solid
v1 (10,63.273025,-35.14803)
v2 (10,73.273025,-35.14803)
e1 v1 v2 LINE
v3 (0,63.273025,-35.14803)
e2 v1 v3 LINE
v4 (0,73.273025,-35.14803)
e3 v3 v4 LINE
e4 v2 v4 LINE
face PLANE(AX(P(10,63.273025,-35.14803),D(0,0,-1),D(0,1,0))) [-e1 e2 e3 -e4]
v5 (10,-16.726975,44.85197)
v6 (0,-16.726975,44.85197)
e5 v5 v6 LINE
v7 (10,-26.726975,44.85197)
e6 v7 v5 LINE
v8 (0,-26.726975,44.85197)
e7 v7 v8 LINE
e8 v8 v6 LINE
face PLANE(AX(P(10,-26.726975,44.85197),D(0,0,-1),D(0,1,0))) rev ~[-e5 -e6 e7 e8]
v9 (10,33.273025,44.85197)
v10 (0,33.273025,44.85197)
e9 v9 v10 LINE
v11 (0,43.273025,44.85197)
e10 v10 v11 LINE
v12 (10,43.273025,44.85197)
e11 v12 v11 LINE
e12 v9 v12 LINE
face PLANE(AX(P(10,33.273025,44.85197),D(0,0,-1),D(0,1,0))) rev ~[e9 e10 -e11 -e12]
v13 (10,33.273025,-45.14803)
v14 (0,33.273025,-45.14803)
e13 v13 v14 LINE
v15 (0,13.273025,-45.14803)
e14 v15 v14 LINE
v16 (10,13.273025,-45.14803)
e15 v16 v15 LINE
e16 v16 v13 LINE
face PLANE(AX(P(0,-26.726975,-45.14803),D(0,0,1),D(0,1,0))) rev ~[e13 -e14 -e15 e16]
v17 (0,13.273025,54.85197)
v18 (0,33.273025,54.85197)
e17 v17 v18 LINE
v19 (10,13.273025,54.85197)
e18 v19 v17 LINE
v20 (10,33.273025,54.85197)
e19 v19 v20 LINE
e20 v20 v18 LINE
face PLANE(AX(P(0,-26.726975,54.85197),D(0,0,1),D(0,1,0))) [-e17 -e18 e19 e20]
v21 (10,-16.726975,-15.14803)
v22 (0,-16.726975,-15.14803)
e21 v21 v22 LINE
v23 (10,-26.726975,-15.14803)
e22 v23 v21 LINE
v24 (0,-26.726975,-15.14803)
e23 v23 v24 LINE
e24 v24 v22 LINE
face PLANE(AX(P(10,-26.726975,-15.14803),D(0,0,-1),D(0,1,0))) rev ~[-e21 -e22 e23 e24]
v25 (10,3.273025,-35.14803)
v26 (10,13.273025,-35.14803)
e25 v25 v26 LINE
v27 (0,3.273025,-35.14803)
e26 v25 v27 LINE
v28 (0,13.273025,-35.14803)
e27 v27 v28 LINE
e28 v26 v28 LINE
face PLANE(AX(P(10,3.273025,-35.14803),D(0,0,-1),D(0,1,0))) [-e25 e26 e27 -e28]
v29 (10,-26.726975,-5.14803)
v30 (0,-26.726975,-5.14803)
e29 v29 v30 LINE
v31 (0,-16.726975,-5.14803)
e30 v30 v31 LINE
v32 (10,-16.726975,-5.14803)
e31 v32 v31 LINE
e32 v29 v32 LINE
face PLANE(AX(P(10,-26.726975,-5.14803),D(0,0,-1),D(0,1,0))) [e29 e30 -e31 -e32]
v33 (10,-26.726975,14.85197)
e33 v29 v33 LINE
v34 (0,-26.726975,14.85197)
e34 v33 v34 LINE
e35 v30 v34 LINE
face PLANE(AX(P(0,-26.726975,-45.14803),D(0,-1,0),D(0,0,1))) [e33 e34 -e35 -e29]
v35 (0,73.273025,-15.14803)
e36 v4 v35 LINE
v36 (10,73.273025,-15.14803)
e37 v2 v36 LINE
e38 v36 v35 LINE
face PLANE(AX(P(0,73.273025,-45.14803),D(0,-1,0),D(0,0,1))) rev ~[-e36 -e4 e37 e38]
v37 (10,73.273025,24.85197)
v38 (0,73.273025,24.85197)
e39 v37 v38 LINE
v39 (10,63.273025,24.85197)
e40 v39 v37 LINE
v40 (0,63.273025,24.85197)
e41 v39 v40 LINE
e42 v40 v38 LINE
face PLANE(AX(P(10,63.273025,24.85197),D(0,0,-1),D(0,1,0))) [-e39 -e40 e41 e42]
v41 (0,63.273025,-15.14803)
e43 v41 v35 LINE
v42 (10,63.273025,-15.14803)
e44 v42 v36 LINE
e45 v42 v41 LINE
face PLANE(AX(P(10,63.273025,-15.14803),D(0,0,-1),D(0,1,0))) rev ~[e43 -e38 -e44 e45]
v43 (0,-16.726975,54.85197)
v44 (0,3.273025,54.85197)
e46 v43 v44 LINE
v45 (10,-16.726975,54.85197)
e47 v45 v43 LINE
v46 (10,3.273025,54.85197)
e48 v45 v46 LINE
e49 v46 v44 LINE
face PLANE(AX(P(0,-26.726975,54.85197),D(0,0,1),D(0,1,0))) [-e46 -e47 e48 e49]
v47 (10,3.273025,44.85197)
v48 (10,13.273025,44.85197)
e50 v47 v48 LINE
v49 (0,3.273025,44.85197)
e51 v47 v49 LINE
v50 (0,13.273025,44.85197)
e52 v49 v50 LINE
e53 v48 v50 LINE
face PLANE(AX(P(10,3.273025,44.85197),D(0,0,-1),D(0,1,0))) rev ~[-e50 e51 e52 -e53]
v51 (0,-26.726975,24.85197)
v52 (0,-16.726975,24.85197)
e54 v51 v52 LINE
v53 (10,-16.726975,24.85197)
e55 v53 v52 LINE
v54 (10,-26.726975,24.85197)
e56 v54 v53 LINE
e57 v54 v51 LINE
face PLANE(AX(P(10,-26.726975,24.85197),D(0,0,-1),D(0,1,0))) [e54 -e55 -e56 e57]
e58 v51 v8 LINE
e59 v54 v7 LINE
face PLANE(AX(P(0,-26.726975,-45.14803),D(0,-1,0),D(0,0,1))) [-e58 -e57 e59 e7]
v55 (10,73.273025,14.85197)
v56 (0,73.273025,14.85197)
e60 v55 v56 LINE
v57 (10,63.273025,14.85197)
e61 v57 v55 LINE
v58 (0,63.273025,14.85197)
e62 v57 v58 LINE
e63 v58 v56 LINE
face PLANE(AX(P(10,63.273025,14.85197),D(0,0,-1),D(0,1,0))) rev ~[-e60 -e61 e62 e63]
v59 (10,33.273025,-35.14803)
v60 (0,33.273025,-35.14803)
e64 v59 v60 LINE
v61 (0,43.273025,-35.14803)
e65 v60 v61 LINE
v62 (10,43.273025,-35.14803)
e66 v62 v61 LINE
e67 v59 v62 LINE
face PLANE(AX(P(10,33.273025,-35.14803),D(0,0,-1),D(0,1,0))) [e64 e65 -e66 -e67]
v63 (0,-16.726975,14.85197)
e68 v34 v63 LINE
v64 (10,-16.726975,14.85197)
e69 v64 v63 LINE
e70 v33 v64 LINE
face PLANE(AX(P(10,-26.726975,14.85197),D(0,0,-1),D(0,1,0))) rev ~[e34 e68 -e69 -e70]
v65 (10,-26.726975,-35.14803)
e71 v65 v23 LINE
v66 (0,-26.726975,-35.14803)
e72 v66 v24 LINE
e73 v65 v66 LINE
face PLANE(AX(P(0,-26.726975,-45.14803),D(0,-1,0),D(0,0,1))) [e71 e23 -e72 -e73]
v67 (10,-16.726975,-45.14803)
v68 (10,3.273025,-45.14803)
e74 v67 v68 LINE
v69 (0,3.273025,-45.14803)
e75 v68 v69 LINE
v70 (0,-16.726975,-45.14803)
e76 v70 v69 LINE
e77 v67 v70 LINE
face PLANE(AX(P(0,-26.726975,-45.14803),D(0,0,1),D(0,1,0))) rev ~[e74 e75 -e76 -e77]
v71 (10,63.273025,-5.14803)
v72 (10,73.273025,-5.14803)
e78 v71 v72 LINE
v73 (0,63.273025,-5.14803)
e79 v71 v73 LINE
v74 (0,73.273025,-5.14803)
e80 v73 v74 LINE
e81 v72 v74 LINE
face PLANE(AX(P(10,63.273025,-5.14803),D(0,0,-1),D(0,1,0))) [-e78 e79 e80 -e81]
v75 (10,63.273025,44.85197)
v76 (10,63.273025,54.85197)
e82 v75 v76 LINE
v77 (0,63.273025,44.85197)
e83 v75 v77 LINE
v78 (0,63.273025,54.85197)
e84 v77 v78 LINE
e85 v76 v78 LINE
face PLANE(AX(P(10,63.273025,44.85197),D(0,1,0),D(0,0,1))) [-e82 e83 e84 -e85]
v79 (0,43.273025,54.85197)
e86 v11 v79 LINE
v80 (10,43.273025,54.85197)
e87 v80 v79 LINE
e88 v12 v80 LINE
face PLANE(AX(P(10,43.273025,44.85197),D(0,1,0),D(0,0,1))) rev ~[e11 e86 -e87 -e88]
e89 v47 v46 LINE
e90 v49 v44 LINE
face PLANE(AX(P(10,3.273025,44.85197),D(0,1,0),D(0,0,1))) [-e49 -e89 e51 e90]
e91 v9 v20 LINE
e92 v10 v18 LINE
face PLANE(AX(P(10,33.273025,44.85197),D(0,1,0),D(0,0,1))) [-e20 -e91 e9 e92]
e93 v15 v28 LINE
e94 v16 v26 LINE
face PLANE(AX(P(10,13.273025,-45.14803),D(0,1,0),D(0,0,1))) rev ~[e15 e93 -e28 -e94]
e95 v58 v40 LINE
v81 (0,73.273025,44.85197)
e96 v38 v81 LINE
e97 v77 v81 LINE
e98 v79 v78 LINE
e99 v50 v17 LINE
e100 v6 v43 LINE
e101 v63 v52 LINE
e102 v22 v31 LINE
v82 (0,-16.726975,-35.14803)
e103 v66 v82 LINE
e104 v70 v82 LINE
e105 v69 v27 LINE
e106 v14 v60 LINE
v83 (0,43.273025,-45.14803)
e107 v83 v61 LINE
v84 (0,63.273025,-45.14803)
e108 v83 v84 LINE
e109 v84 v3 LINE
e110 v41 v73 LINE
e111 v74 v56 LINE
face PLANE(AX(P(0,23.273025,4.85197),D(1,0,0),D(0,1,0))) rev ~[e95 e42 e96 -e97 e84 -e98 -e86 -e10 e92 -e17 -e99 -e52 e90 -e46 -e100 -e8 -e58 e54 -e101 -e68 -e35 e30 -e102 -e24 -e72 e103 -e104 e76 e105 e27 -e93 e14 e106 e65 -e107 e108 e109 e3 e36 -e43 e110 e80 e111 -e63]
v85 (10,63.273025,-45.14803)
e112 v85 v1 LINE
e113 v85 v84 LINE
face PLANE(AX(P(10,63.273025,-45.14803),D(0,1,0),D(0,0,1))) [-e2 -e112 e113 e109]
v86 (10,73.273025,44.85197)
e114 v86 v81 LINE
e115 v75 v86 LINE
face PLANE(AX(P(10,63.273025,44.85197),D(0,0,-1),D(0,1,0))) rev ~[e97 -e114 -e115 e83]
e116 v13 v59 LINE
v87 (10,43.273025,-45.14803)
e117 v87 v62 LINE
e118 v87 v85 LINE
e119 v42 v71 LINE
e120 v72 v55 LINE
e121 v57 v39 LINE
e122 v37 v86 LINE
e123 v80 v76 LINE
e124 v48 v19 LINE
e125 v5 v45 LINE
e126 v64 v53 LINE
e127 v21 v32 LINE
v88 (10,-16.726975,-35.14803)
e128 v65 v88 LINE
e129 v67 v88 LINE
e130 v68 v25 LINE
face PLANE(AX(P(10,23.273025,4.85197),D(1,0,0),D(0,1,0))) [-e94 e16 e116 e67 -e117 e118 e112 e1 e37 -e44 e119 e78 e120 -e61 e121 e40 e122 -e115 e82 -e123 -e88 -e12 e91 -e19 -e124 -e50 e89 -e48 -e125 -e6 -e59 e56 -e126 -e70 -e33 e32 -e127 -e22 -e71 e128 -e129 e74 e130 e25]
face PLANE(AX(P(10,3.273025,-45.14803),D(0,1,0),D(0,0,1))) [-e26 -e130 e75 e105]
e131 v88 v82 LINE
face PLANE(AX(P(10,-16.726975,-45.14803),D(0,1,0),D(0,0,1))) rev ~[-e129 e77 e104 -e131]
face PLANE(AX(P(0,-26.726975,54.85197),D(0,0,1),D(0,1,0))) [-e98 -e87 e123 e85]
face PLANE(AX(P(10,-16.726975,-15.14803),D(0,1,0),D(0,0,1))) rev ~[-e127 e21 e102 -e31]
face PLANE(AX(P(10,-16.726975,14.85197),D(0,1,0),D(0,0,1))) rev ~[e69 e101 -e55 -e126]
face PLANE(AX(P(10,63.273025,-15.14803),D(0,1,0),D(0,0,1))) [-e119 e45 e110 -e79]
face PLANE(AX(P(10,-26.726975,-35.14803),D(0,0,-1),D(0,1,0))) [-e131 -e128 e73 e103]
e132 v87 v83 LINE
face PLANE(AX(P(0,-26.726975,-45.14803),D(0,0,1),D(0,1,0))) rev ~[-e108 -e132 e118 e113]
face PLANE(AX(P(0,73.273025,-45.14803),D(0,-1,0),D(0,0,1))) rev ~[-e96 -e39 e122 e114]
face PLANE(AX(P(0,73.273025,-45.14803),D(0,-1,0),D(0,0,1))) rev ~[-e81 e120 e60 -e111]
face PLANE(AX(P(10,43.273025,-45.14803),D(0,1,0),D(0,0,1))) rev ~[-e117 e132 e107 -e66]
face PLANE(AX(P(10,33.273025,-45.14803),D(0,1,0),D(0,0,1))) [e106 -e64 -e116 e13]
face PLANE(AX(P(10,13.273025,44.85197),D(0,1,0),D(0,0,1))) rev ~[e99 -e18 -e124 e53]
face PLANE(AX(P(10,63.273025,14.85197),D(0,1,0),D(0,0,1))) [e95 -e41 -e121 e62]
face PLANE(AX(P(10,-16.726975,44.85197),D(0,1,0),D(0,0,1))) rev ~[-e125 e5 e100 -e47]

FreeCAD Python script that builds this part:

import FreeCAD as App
import Part
import Sketcher


def add_polygon(sketch, points):
    """Adds a closed chain of lines whose ends are joined by coincident constraints."""
    first, n = sketch.GeometryCount, len(points)
    for a, b in zip(points, points[1:] + points[:1]):
        sketch.addGeometry(Part.LineSegment(App.Vector(*a, 0), App.Vector(*b, 0)), False)
    for i in range(n):
        sketch.addConstraint(Sketcher.Constraint("Coincident", first + i, 2, first + (i + 1) % n, 1))

doc = App.newDocument("Part")
body = doc.addObject("PartDesign::Body", "Body")

sketch1 = doc.addObject("Sketcher::SketchObject", "Sketch")
body.addObject(sketch1)
sketch1.AttachmentSupport = (doc.YZ_Plane, [""])
sketch1.MapMode = "FlatFace"
add_polygon(sketch1, [(-27, 55), (-27, -45), (73, -45), (73, 55)])
sketch1.addConstraint([
    Sketcher.Constraint("Vertical", 0),
    Sketcher.Constraint("Horizontal", 1),
    Sketcher.Constraint("Vertical", 2),
    Sketcher.Constraint("Horizontal", 3),
    Sketcher.Constraint("Equal", 3, 0),
    Sketcher.Constraint("DistanceX", 1, 1, 1, 2, 100.0),
    Sketcher.Constraint("DistanceY", 0, 2, -1, 1, 45.14803),
    Sketcher.Constraint("DistanceX", 0, 2, -1, 1, 26.726975),
])
pad1 = doc.addObject("PartDesign::Pad", "Pad")
body.addObject(pad1)
pad1.Profile = sketch1
pad1.Length = 10

sketch2 = doc.addObject("Sketcher::SketchObject", "Sketch001")
body.addObject(sketch2)
sketch2.AttachmentSupport = (doc.YZ_Plane, [""])
sketch2.MapMode = "FlatFace"
sketch2.AttachmentOffset = App.Placement(App.Vector(0, 0, 10), App.Rotation())
add_polygon(sketch2, [(-27, 55), (-27, 45), (-17, 45), (-17, 55)])
sketch2.addConstraint([
    Sketcher.Constraint("Vertical", 0),
    Sketcher.Constraint("Horizontal", 1),
    Sketcher.Constraint("Vertical", 2),
    Sketcher.Constraint("Horizontal", 3),
    Sketcher.Constraint("Equal", 3, 0),
    Sketcher.Constraint("DistanceX", 1, 1, 1, 2, 10.0),
    Sketcher.Constraint("DistanceY", -1, 1, 0, 2, 44.85197),
    Sketcher.Constraint("DistanceX", 0, 2, -1, 1, 26.726975),
])
pocket1 = doc.addObject("PartDesign::Pocket", "Pocket")
body.addObject(pocket1)
pocket1.Profile = sketch2
pocket1.Length = 10

sketch3 = doc.addObject("Sketcher::SketchObject", "Sketch002")
body.addObject(sketch3)
sketch3.AttachmentSupport = (doc.YZ_Plane, [""])
sketch3.MapMode = "FlatFace"
sketch3.AttachmentOffset = App.Placement(App.Vector(0, 0, 10), App.Rotation())
add_polygon(sketch3, [(-27, 25), (-27, 15), (-17, 15), (-17, 25)])
sketch3.addConstraint([
    Sketcher.Constraint("Vertical", 0),
    Sketcher.Constraint("Horizontal", 1),
    Sketcher.Constraint("Vertical", 2),
    Sketcher.Constraint("Horizontal", 3),
    Sketcher.Constraint("Equal", 3, 0),
    Sketcher.Constraint("DistanceX", 1, 1, 1, 2, 10.0),
    Sketcher.Constraint("DistanceY", -1, 1, 0, 2, 14.85197),
    Sketcher.Constraint("DistanceX", 0, 2, -1, 1, 26.726975),
])
pocket2 = doc.addObject("PartDesign::Pocket", "Pocket001")
body.addObject(pocket2)
pocket2.Profile = sketch3
pocket2.Length = 25

sketch4 = doc.addObject("Sketcher::SketchObject", "Sketch003")
body.addObject(sketch4)
sketch4.AttachmentSupport = (doc.YZ_Plane, [""])
sketch4.MapMode = "FlatFace"
sketch4.AttachmentOffset = App.Placement(App.Vector(0, 0, 10), App.Rotation())
add_polygon(sketch4, [(-27, -5), (-27, -15), (-17, -15), (-17, -5)])
sketch4.addConstraint([
    Sketcher.Constraint("Vertical", 0),
    Sketcher.Constraint("Horizontal", 1),
    Sketcher.Constraint("Vertical", 2),
    Sketcher.Constraint("Horizontal", 3),
    Sketcher.Constraint("Equal", 3, 0),
    Sketcher.Constraint("DistanceX", 1, 1, 1, 2, 10.0),
    Sketcher.Constraint("DistanceY", 0, 2, -1, 1, 15.14803),
    Sketcher.Constraint("DistanceX", 0, 2, -1, 1, 26.726975),
])
pocket3 = doc.addObject("PartDesign::Pocket", "Pocket002")
body.addObject(pocket3)
pocket3.Profile = sketch4
pocket3.Length = 10

sketch5 = doc.addObject("Sketcher::SketchObject", "Sketch004")
body.addObject(sketch5)
sketch5.AttachmentSupport = (doc.YZ_Plane, [""])
sketch5.MapMode = "FlatFace"
sketch5.AttachmentOffset = App.Placement(App.Vector(0, 0, 10), App.Rotation())
add_polygon(sketch5, [(-27, -35), (-27, -45), (-17, -45), (-17, -35)])
sketch5.addConstraint([
    Sketcher.Constraint("Vertical", 0),
    Sketcher.Constraint("Horizontal", 1),
    Sketcher.Constraint("Vertical", 2),
    Sketcher.Constraint("Horizontal", 3),
    Sketcher.Constraint("Equal", 3, 0),
    Sketcher.Constraint("DistanceX", 1, 1, 1, 2, 10.0),
    Sketcher.Constraint("DistanceY", 0, 2, -1, 1, 45.14803),
    Sketcher.Constraint("DistanceX", 0, 2, -1, 1, 26.726975),
])
pocket4 = doc.addObject("PartDesign::Pocket", "Pocket003")
body.addObject(pocket4)
pocket4.Profile = sketch5
pocket4.Length = 10

sketch6 = doc.addObject("Sketcher::SketchObject", "Sketch005")
body.addObject(sketch6)
sketch6.AttachmentSupport = (doc.YZ_Plane, [""])
sketch6.MapMode = "FlatFace"
sketch6.AttachmentOffset = App.Placement(App.Vector(0, 0, 10), App.Rotation())
add_polygon(sketch6, [(3, -35), (3, -45), (13, -45), (13, -35)])
sketch6.addConstraint([
    Sketcher.Constraint("Vertical", 0),
    Sketcher.Constraint("Horizontal", 1),
    Sketcher.Constraint("Vertical", 2),
    Sketcher.Constraint("Horizontal", 3),
    Sketcher.Constraint("Equal", 3, 0),
    Sketcher.Constraint("DistanceX", 1, 1, 1, 2, 10.0),
    Sketcher.Constraint("DistanceY", 0, 2, -1, 1, 45.14803),
    Sketcher.Constraint("DistanceX", -1, 1, 0, 2, 3.273025),
])
pocket5 = doc.addObject("PartDesign::Pocket", "Pocket004")
body.addObject(pocket5)
pocket5.Profile = sketch6
pocket5.Length = 10

sketch7 = doc.addObject("Sketcher::SketchObject", "Sketch006")
body.addObject(sketch7)
sketch7.AttachmentSupport = (doc.YZ_Plane, [""])
sketch7.MapMode = "FlatFace"
sketch7.AttachmentOffset = App.Placement(App.Vector(0, 0, 10), App.Rotation())
add_polygon(sketch7, [(33, -35), (33, -45), (43, -45), (43, -35)])
sketch7.addConstraint([
    Sketcher.Constraint("Vertical", 0),
    Sketcher.Constraint("Horizontal", 1),
    Sketcher.Constraint("Vertical", 2),
    Sketcher.Constraint("Horizontal", 3),
    Sketcher.Constraint("Equal", 3, 0),
    Sketcher.Constraint("DistanceX", 1, 1, 1, 2, 10.0),
    Sketcher.Constraint("DistanceY", 0, 2, -1, 1, 45.14803),
    Sketcher.Constraint("DistanceX", -1, 1, 0, 2, 33.273025),
])
pocket6 = doc.addObject("PartDesign::Pocket", "Pocket005")
body.addObject(pocket6)
pocket6.Profile = sketch7
pocket6.Length = 10

sketch8 = doc.addObject("Sketcher::SketchObject", "Sketch007")
body.addObject(sketch8)
sketch8.AttachmentSupport = (doc.YZ_Plane, [""])
sketch8.MapMode = "FlatFace"
sketch8.AttachmentOffset = App.Placement(App.Vector(0, 0, 10), App.Rotation())
add_polygon(sketch8, [(63, -35), (63, -45), (73, -45), (73, -35)])
sketch8.addConstraint([
    Sketcher.Constraint("Vertical", 0),
    Sketcher.Constraint("Horizontal", 1),
    Sketcher.Constraint("Vertical", 2),
    Sketcher.Constraint("Horizontal", 3),
    Sketcher.Constraint("Equal", 3, 0),
    Sketcher.Constraint("DistanceX", 1, 1, 1, 2, 10.0),
    Sketcher.Constraint("DistanceY", 0, 2, -1, 1, 45.14803),
    Sketcher.Constraint("DistanceX", -1, 1, 0, 2, 63.273025),
])
pocket7 = doc.addObject("PartDesign::Pocket", "Pocket006")
body.addObject(pocket7)
pocket7.Profile = sketch8
pocket7.Length = 20

sketch9 = doc.addObject("Sketcher::SketchObject", "Sketch008")
body.addObject(sketch9)
sketch9.AttachmentSupport = (doc.YZ_Plane, [""])
sketch9.MapMode = "FlatFace"
sketch9.AttachmentOffset = App.Placement(App.Vector(0, 0, 10), App.Rotation())
add_polygon(sketch9, [(63, -5), (63, -15), (73, -15), (73, -5)])
sketch9.addConstraint([
    Sketcher.Constraint("Vertical", 0),
    Sketcher.Constraint("Horizontal", 1),
    Sketcher.Constraint("Vertical", 2),
    Sketcher.Constraint("Horizontal", 3),
    Sketcher.Constraint("Equal", 3, 0),
    Sketcher.Constraint("DistanceX", 1, 1, 1, 2, 10.0),
    Sketcher.Constraint("DistanceY", 0, 2, -1, 1, 15.14803),
    Sketcher.Constraint("DistanceX", -1, 1, 0, 2, 63.273025),
])
pocket8 = doc.addObject("PartDesign::Pocket", "Pocket007")
body.addObject(pocket8)
pocket8.Profile = sketch9
pocket8.Length = 10

sketch10 = doc.addObject("Sketcher::SketchObject", "Sketch009")
body.addObject(sketch10)
sketch10.AttachmentSupport = (doc.YZ_Plane, [""])
sketch10.MapMode = "FlatFace"
sketch10.AttachmentOffset = App.Placement(App.Vector(0, 0, 10), App.Rotation())
add_polygon(sketch10, [(63, 25), (63, 15), (73, 15), (73, 25)])
sketch10.addConstraint([
    Sketcher.Constraint("Vertical", 0),
    Sketcher.Constraint("Horizontal", 1),
    Sketcher.Constraint("Vertical", 2),
    Sketcher.Constraint("Horizontal", 3),
    Sketcher.Constraint("Equal", 3, 0),
    Sketcher.Constraint("DistanceX", 1, 1, 1, 2, 10.0),
    Sketcher.Constraint("DistanceY", -1, 1, 0, 2, 14.85197),
    Sketcher.Constraint("DistanceX", -1, 1, 0, 2, 63.273025),
])
pocket9 = doc.addObject("PartDesign::Pocket", "Pocket008")
body.addObject(pocket9)
pocket9.Profile = sketch10
pocket9.Length = 10

sketch11 = doc.addObject("Sketcher::SketchObject", "Sketch010")
body.addObject(sketch11)
sketch11.AttachmentSupport = (doc.YZ_Plane, [""])
sketch11.MapMode = "FlatFace"
sketch11.AttachmentOffset = App.Placement(App.Vector(0, 0, 10), App.Rotation())
add_polygon(sketch11, [(63, 55), (63, 45), (73, 45), (73, 55)])
sketch11.addConstraint([
    Sketcher.Constraint("Vertical", 0),
    Sketcher.Constraint("Horizontal", 1),
    Sketcher.Constraint("Vertical", 2),
    Sketcher.Constraint("Horizontal", 3),
    Sketcher.Constraint("Equal", 3, 0),
    Sketcher.Constraint("DistanceX", 1, 1, 1, 2, 10.0),
    Sketcher.Constraint("DistanceY", -1, 1, 0, 2, 44.85197),
    Sketcher.Constraint("DistanceX", -1, 1, 0, 2, 63.273025),
])
pocket10 = doc.addObject("PartDesign::Pocket", "Pocket009")
body.addObject(pocket10)
pocket10.Profile = sketch11
pocket10.Length = 10

sketch12 = doc.addObject("Sketcher::SketchObject", "Sketch011")
body.addObject(sketch12)
sketch12.AttachmentSupport = (doc.YZ_Plane, [""])
sketch12.MapMode = "FlatFace"
sketch12.AttachmentOffset = App.Placement(App.Vector(0, 0, 10), App.Rotation())
add_polygon(sketch12, [(33, 55), (33, 45), (43, 45), (43, 55)])
sketch12.addConstraint([
    Sketcher.Constraint("Vertical", 0),
    Sketcher.Constraint("Horizontal", 1),
    Sketcher.Constraint("Vertical", 2),
    Sketcher.Constraint("Horizontal", 3),
    Sketcher.Constraint("Equal", 3, 0),
    Sketcher.Constraint("DistanceX", 1, 1, 1, 2, 10.0),
    Sketcher.Constraint("DistanceY", -1, 1, 0, 2, 44.85197),
    Sketcher.Constraint("DistanceX", -1, 1, 0, 2, 33.273025),
])
pocket11 = doc.addObject("PartDesign::Pocket", "Pocket010")
body.addObject(pocket11)
pocket11.Profile = sketch12
pocket11.Length = 10

sketch13 = doc.addObject("Sketcher::SketchObject", "Sketch012")
body.addObject(sketch13)
sketch13.AttachmentSupport = (doc.YZ_Plane, [""])
sketch13.MapMode = "FlatFace"
sketch13.AttachmentOffset = App.Placement(App.Vector(0, 0, 10), App.Rotation())
add_polygon(sketch13, [(3, 55), (3, 45), (13, 45), (13, 55)])
sketch13.addConstraint([
    Sketcher.Constraint("Vertical", 0),
    Sketcher.Constraint("Horizontal", 1),
    Sketcher.Constraint("Vertical", 2),
    Sketcher.Constraint("Horizontal", 3),
    Sketcher.Constraint("Equal", 3, 0),
    Sketcher.Constraint("DistanceX", 1, 1, 1, 2, 10.0),
    Sketcher.Constraint("DistanceY", -1, 1, 0, 2, 44.85197),
    Sketcher.Constraint("DistanceX", -1, 1, 0, 2, 3.273025),
])
pocket12 = doc.addObject("PartDesign::Pocket", "Pocket011")
body.addObject(pocket12)
pocket12.Profile = sketch13
pocket12.Length = 10

doc.recompute()
